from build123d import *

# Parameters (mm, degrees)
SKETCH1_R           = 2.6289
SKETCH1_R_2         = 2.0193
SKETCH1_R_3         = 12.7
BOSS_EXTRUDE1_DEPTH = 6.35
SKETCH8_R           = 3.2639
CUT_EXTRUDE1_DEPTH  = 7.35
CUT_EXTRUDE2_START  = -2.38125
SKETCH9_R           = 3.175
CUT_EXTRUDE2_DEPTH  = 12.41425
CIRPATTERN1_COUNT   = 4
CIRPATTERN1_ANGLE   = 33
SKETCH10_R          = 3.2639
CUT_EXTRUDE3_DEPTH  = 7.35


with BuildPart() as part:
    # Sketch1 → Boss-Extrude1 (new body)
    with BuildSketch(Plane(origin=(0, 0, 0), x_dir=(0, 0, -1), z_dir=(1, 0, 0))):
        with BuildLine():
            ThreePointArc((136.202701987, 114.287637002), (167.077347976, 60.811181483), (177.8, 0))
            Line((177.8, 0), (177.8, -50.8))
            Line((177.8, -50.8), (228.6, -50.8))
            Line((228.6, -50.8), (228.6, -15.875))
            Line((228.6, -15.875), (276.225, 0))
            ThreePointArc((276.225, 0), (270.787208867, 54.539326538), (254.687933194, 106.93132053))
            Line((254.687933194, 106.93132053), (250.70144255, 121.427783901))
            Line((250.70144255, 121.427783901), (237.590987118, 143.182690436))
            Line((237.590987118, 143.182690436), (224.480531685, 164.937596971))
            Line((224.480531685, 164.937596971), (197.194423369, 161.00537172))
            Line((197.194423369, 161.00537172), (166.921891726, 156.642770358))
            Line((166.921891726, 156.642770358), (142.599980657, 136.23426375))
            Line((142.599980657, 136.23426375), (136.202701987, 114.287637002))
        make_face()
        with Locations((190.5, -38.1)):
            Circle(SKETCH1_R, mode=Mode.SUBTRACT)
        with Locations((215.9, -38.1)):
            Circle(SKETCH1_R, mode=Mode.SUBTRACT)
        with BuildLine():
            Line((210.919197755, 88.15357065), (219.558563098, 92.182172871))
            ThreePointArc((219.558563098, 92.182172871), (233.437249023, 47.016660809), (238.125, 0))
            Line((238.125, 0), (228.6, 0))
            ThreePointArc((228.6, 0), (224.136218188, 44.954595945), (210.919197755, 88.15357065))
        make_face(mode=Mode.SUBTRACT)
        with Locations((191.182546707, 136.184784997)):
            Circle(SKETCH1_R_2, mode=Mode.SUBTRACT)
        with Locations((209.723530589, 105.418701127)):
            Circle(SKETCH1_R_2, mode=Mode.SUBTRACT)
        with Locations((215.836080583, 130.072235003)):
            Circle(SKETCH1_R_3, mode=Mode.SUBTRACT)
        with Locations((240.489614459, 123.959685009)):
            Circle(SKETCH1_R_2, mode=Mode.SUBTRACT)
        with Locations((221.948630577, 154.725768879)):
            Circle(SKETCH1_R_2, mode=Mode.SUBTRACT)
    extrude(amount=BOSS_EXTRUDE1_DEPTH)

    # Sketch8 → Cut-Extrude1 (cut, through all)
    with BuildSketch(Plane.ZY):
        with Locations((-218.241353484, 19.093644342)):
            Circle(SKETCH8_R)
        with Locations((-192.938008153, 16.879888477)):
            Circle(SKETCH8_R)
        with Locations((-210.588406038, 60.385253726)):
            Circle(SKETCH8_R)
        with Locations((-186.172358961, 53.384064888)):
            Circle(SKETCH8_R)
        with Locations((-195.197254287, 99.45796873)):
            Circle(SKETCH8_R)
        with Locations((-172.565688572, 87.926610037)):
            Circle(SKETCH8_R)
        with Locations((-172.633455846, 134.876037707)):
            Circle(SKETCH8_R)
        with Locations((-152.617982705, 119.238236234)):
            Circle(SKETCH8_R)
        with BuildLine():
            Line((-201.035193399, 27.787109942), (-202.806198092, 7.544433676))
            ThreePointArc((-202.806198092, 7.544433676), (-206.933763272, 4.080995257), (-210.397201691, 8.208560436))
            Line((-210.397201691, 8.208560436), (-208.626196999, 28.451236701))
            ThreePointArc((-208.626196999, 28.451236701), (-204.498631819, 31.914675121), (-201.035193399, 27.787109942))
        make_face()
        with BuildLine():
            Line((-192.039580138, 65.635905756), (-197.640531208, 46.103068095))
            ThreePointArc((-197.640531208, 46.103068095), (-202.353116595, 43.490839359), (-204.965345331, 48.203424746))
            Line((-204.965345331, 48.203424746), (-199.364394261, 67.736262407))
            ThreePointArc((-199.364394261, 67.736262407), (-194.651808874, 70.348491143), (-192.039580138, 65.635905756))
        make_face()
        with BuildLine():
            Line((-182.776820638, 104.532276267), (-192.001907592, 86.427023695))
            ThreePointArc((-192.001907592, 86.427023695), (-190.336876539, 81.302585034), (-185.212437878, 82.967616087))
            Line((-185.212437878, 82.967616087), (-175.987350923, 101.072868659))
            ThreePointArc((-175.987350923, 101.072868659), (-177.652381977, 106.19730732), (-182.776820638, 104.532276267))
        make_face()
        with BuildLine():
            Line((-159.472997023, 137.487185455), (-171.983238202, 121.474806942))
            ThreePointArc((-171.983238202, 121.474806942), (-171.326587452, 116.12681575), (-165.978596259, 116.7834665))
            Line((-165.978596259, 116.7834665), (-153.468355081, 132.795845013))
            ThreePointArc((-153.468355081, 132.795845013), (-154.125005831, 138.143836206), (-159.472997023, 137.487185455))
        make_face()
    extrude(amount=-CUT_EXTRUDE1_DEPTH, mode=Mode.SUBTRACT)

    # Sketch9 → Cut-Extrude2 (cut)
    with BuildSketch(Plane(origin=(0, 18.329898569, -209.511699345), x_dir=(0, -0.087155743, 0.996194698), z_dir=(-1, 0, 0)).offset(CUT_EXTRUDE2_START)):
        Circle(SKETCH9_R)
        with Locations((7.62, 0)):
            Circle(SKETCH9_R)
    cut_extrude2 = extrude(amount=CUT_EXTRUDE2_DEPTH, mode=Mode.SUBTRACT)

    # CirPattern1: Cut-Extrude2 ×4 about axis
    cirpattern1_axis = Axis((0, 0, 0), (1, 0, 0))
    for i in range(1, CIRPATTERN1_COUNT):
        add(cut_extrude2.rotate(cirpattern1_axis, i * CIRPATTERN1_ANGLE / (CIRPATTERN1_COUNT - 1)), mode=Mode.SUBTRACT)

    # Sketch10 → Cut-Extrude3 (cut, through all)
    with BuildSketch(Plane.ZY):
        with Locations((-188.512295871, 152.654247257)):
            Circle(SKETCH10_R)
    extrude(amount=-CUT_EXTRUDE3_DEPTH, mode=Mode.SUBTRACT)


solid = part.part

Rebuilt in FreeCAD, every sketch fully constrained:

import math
import FreeCAD as App
import Part
import Sketcher
from FreeCAD import Vector
Q = App.Units.Quantity

doc = App.newDocument("Part")
body = doc.addObject("PartDesign::Body", "Body")

sketch1 = body.newObject("Sketcher::SketchObject", "Sketch")
sketch1.AttachmentSupport = (doc.getObject("YZ_Plane"), [""])
sketch1.MapMode = "FlatFace"
sketch1.addGeometry([
    Part.ArcOfCircle(Part.Circle(Vector(0, 0, 0), Vector(0, 0, 1), 177.8), math.radians(-90), math.radians(-50)),
    Part.LineSegment(Vector(0, -177.8, 0), Vector(-50.8, -177.8, 0)),
    Part.LineSegment(Vector(-50.8, -177.8, 0), Vector(-50.8, -228.6, 0)),
    Part.LineSegment(Vector(-50.8, -228.6, 0), Vector(-15.9, -228.6, 0)),
    Part.LineSegment(Vector(-15.9, -228.6, 0), Vector(0, -276.2, 0)),
    Part.ArcOfCircle(Part.Circle(Vector(0, 0, 0), Vector(0, 0, 1), 276.2), math.radians(-90), math.radians(-67)),
    Part.LineSegment(Vector(106.9, -254.7, 0), Vector(121.4, -250.7, 0)),
    Part.LineSegment(Vector(121.4, -250.7, 0), Vector(143.2, -237.6, 0)),
    Part.LineSegment(Vector(143.2, -237.6, 0), Vector(164.9, -224.5, 0)),
    Part.LineSegment(Vector(164.9, -224.5, 0), Vector(161, -197.2, 0)),
    Part.LineSegment(Vector(161, -197.2, 0), Vector(156.6, -166.9, 0)),
    Part.LineSegment(Vector(156.6, -166.9, 0), Vector(136.2, -142.6, 0)),
    Part.LineSegment(Vector(136.2, -142.6, 0), Vector(114.3, -136.2, 0)),
    Part.Circle(Vector(-38.1, -190.5, 0), Vector(0, 0, 1), 2.6),
    Part.Circle(Vector(-38.1, -215.9, 0), Vector(0, 0, 1), 2.6),
    Part.ArcOfCircle(Part.Circle(Vector(0, 0, 0), Vector(0, 0, 1), 228.6), math.radians(-90), math.radians(-67)),
    Part.LineSegment(Vector(88.2, -210.9, 0), Vector(92.2, -219.6, 0)),
    Part.ArcOfCircle(Part.Circle(Vector(0, 0, 0), Vector(0, 0, 1), 238.1), math.radians(-90), math.radians(-67)),
    Part.LineSegment(Vector(0, -238.1, 0), Vector(0, -228.6, 0)),
    Part.Circle(Vector(105.4, -209.7, 0), Vector(0, 0, 1), 2),
    Part.Circle(Vector(136.2, -191.2, 0), Vector(0, 0, 1), 2),
    Part.Circle(Vector(130.1, -215.8, 0), Vector(0, 0, 1), 12.7),
    Part.Circle(Vector(154.7, -221.9, 0), Vector(0, 0, 1), 2),
    Part.Circle(Vector(124, -240.5, 0), Vector(0, 0, 1), 2),
], False)
sketch1.addConstraint([
    Sketcher.Constraint("Tangent", 0, 1, 1, 1),
    Sketcher.Constraint("Coincident", 1, 2, 2, 1),
    Sketcher.Constraint("Coincident", 2, 2, 3, 1),
    Sketcher.Constraint("Coincident", 3, 2, 4, 1),
    Sketcher.Constraint("Coincident", 4, 2, 5, 1),
    Sketcher.Constraint("Coincident", 5, 2, 6, 1),
    Sketcher.Constraint("Coincident", 6, 2, 7, 1),
    Sketcher.Constraint("Coincident", 7, 2, 8, 1),
    Sketcher.Constraint("Coincident", 8, 2, 9, 1),
    Sketcher.Constraint("Coincident", 9, 2, 10, 1),
    Sketcher.Constraint("Coincident", 10, 2, 11, 1),
    Sketcher.Constraint("Coincident", 11, 2, 12, 1),
    Sketcher.Constraint("Coincident", 12, 2, 0, 2),
    Sketcher.Constraint("Coincident", 15, 2, 16, 1),
    Sketcher.Constraint("Coincident", 16, 2, 17, 2),
    Sketcher.Constraint("Coincident", 17, 1, 18, 1),
    Sketcher.Constraint("Coincident", 18, 2, 15, 1),
    Sketcher.Constraint("Horizontal", 1),
    Sketcher.Constraint("Vertical", 2),
    Sketcher.Constraint("Horizontal", 3),
    Sketcher.Constraint("Vertical", 18),
    Sketcher.Constraint("Coincident", 0, 3, -1, 1),
    Sketcher.Constraint("Coincident", 5, 3, -1, 1),
    Sketcher.Constraint("Coincident", 15, 3, -1, 1),
    Sketcher.Constraint("Coincident", 17, 3, -1, 1),
    Sketcher.Constraint("Equal", 13, 14),
    Sketcher.Constraint("Equal", 19, 20),
    Sketcher.Constraint("Equal", 20, 22),
    Sketcher.Constraint("Equal", 22, 23),
    Sketcher.Constraint("PointOnObject", 4, 2, -2),
    Sketcher.Constraint("PointOnObject", 17, 1, -2),
    Sketcher.Constraint("Parallel", 7, 8),
    Sketcher.Constraint("Parallel", 9, 10),
    Sketcher.Constraint("Horizontal", 3, 2, 18, 2),
    Sketcher.Constraint("Vertical", 13, 3, 14, 3),
    Sketcher.Constraint("Equal", 1, 2),
    Sketcher.Constraint("Equal", 7, 8),
    Sketcher.Constraint("Diameter", 21, Q("1 in")),
    Sketcher.Constraint("Radius", 0, Q("7 in")),
    Sketcher.Constraint("Radius", 15, Q("9 in")),
    Sketcher.Constraint("Distance", 7, Q("1 in")),
    Sketcher.Constraint("Diameter", 13, Q("0.207 in")),
    Sketcher.Constraint("Diameter", 19, Q("0.159 in")),
    Sketcher.Constraint("Angle", 11, Q("130 deg")),
    Sketcher.Constraint("Angle", 16, Q("-65 deg")),
    Sketcher.Constraint("Radius", 5, Q("10.875 in")),
    Sketcher.Constraint("Radius", 17, Q("9.375 in")),
    Sketcher.Constraint("DistanceY", 14, 3, 13, 3, Q("1 in")),
    Sketcher.Constraint("Distance", 12, Q("0.9 in")),
    Sketcher.Constraint("DistanceX", 13, 3, -1, 1, Q("1.5 in")),
    Sketcher.Constraint("DistanceY", 13, 3, -1, 1, Q("7.5 in")),
    Sketcher.Constraint("Distance", 11, Q("1.25 in")),
    Sketcher.Constraint("DistanceX", 3, 1, 3, 2, Q("1.375 in")),
    Sketcher.Constraint("DistanceX", -1, 1, 19, 3, Q("105.418701 mm")),
    Sketcher.Constraint("DistanceY", 12, 2, -1, 1, Q("136.202702 mm")),
    Sketcher.Constraint("DistanceY", 22, 3, 19, 3, Q("12.2251 mm")),
    Sketcher.Constraint("DistanceX", 23, 3, 20, 3, Q("12.2251 mm")),
    Sketcher.Constraint("DistanceX", 6, 2, 23, 3, Q("2.531901 mm")),
    Sketcher.Constraint("DistanceY", 8, 2, 22, 3, Q("2.531901 mm")),
    Sketcher.Constraint("DistanceX", 10, 2, 9, 2, Q("4.362601 mm")),
    Sketcher.Constraint("DistanceX", 22, 3, 10, 2, Q("1.917001 mm")),
    Sketcher.Constraint("DistanceY", 21, 3, 11, 2, Q("73.2361 mm")),
    Sketcher.Constraint("Distance", 6, Q("15.034612 mm")),
    Sketcher.Constraint("Distance", 9, Q("27.567991 mm")),
    Sketcher.Constraint("DistanceY", 19, 3, -1, 1, Q("209.723531 mm")),
    Sketcher.Constraint("DistanceY", 21, 3, -1, 1, Q("215.836081 mm")),
    Sketcher.Constraint("DistanceX", -1, 1, 7, 2, Q("143.18269 mm")),
    Sketcher.Constraint("DistanceX", -1, 1, 15, 2, Q("88.153571 mm")),
    Sketcher.Constraint("DistanceX", 21, 3, 20, 3, Q("6.11255 mm")),
    Sketcher.Constraint("DistanceY", 5, 2, 23, 3, Q("14.198319 mm")),
    Sketcher.Constraint("DistanceY", 20, 3, -1, 1, Q("191.182547 mm")),
])
pad1 = body.newObject("PartDesign::Pad", "Pad")
pad1.Profile = sketch1
pad1.Length = Q("0.25 in")

sketch2 = body.newObject("Sketcher::SketchObject", "Sketch001")
sketch2.AttachmentSupport = (doc.getObject("YZ_Plane"), [""])
sketch2.MapMode = "FlatFace"
sketch2.addGeometry([
    Part.Circle(Vector(19.1, -218.2, 0), Vector(0, 0, 1), 3.3),
    Part.Circle(Vector(16.9, -192.9, 0), Vector(0, 0, 1), 3.3),
    Part.Circle(Vector(60.4, -210.6, 0), Vector(0, 0, 1), 3.3),
    Part.Circle(Vector(53.4, -186.2, 0), Vector(0, 0, 1), 3.3),
    Part.Circle(Vector(99.5, -195.2, 0), Vector(0, 0, 1), 3.3),
    Part.Circle(Vector(87.9, -172.6, 0), Vector(0, 0, 1), 3.3),
    Part.Circle(Vector(134.9, -172.6, 0), Vector(0, 0, 1), 3.3),
    Part.Circle(Vector(119.2, -152.6, 0), Vector(0, 0, 1), 3.3),
    Part.LineSegment(Vector(7.5, -202.8, 0), Vector(27.8, -201, 0)),
    Part.ArcOfCircle(Part.Circle(Vector(28.1, -204.8, 0), Vector(0, 0, 1), 3.8), math.radians(-85), math.radians(95)),
    Part.LineSegment(Vector(28.5, -208.6, 0), Vector(8.2, -210.4, 0)),
    Part.ArcOfCircle(Part.Circle(Vector(7.9, -206.6, 0), Vector(0, 0, 1), 3.8), math.radians(95), math.radians(275)),
    Part.LineSegment(Vector(46.1, -197.6, 0), Vector(65.6, -192, 0)),
    Part.ArcOfCircle(Part.Circle(Vector(66.7, -195.7, 0), Vector(0, 0, 1), 3.8), math.radians(-74), math.radians(106)),
    Part.LineSegment(Vector(67.7, -199.4, 0), Vector(48.2, -205, 0)),
    Part.ArcOfCircle(Part.Circle(Vector(47.2, -201.3, 0), Vector(0, 0, 1), 3.8), math.radians(106), math.radians(286)),
    Part.LineSegment(Vector(104.5, -182.8, 0), Vector(86.4, -192, 0)),
    Part.ArcOfCircle(Part.Circle(Vector(84.7, -188.6, 0), Vector(0, 0, 1), 3.8), math.radians(117), math.radians(297)),
    Part.LineSegment(Vector(83, -185.2, 0), Vector(101.1, -176, 0)),
    Part.ArcOfCircle(Part.Circle(Vector(102.8, -179.4, 0), Vector(0, 0, 1), 3.8), math.radians(-63), math.radians(117)),
    Part.LineSegment(Vector(137.5, -159.5, 0), Vector(121.5, -172, 0)),
    Part.ArcOfCircle(Part.Circle(Vector(119.1, -169, 0), Vector(0, 0, 1), 3.8), math.radians(128), math.radians(308)),
    Part.LineSegment(Vector(116.8, -166, 0), Vector(132.8, -153.5, 0)),
    Part.ArcOfCircle(Part.Circle(Vector(135.1, -156.5, 0), Vector(0, 0, 1), 3.8), math.radians(-52), math.radians(128)),
], False)
sketch2.addConstraint([
    Sketcher.Constraint("Tangent", 8, 2, 9, 2),
    Sketcher.Constraint("Tangent", 9, 1, 10, 1),
    Sketcher.Constraint("Tangent", 10, 2, 11, 2),
    Sketcher.Constraint("Tangent", 11, 1, 8, 1),
    Sketcher.Constraint("Tangent", 12, 2, 13, 2),
    Sketcher.Constraint("Tangent", 13, 1, 14, 1),
    Sketcher.Constraint("Tangent", 14, 2, 15, 2),
    Sketcher.Constraint("Tangent", 15, 1, 12, 1),
    Sketcher.Constraint("Tangent", 16, 2, 17, 2),
    Sketcher.Constraint("Tangent", 17, 1, 18, 1),
    Sketcher.Constraint("Tangent", 18, 2, 19, 2),
    Sketcher.Constraint("Tangent", 19, 1, 16, 1),
    Sketcher.Constraint("Tangent", 20, 2, 21, 2),
    Sketcher.Constraint("Tangent", 21, 1, 22, 1),
    Sketcher.Constraint("Tangent", 22, 2, 23, 2),
    Sketcher.Constraint("Tangent", 23, 1, 20, 1),
    Sketcher.Constraint("Equal", 0, 1),
    Sketcher.Constraint("Equal", 1, 2),
    Sketcher.Constraint("Equal", 2, 3),
    Sketcher.Constraint("Equal", 3, 4),
    Sketcher.Constraint("Equal", 4, 5),
    Sketcher.Constraint("Equal", 5, 6),
    Sketcher.Constraint("Equal", 6, 7),
    Sketcher.Constraint("Equal", 9, 11),
    Sketcher.Constraint("Equal", 11, 13),
    Sketcher.Constraint("Equal", 13, 15),
    Sketcher.Constraint("Equal", 15, 17),
    Sketcher.Constraint("Equal", 17, 19),
    Sketcher.Constraint("Equal", 19, 21),
    Sketcher.Constraint("Equal", 21, 23),
    Sketcher.Constraint("Equal", 10, 12),
    Sketcher.Constraint("Equal", 14, 16),
    Sketcher.Constraint("Equal", 18, 20),
    Sketcher.Constraint("Radius", 9, Q("0.15 in")),
    Sketcher.Constraint("Diameter", 0, Q("0.257 in")),
    Sketcher.Constraint("Angle", 8, Q("5 deg")),
    Sketcher.Constraint("Angle", 12, Q("16 deg")),
    Sketcher.Constraint("Angle", 16, Q("-153 deg")),
    Sketcher.Constraint("Angle", 20, Q("-142 deg")),
    Sketcher.Constraint("Distance", 8, Q("0.8 in")),
    Sketcher.Constraint("DistanceY", 2, 3, 7, 3, Q("2.2823001 in")),
    Sketcher.Constraint("DistanceY", 11, 3, -1, 1, Q("206.6017 mm")),
    Sketcher.Constraint("DistanceY", 0, 3, 4, 3, Q("23.044099 mm")),
    Sketcher.Constraint("DistanceY", 4, 3, 6, 3, Q("22.563798 mm")),
    Sketcher.Constraint("DistanceX", 7, 3, 6, 3, Q("15.637801 mm")),
    Sketcher.Constraint("DistanceY", 13, 3, 5, 3, Q("23.136299 mm")),
    Sketcher.Constraint("DistanceX", 21, 3, 6, 3, Q("15.746901 mm")),
    Sketcher.Constraint("DistanceX", 4, 3, 18, 2, Q("1.6149 mm")),
    Sketcher.Constraint("DistanceY", 6, 3, 22, 2, Q("19.165101 mm")),
    Sketcher.Constraint("DistanceX", -1, 1, 1, 3, Q("16.879888 mm")),
    Sketcher.Constraint("DistanceY", 1, 3, -1, 1, Q("192.938008 mm")),
    Sketcher.Constraint("DistanceY", 3, 3, -1, 1, Q("186.172359 mm")),
    Sketcher.Constraint("DistanceX", -1, 1, 4, 3, Q("99.457969 mm")),
    Sketcher.Constraint("DistanceX", -1, 1, 5, 3, Q("87.92661 mm")),
    Sketcher.Constraint("DistanceY", 5, 3, -1, 1, Q("172.565689 mm")),
    Sketcher.Constraint("DistanceX", -1, 1, 8, 2, Q("27.78711 mm")),
    Sketcher.Constraint("DistanceX", -1, 1, 15, 1, Q("46.103068 mm")),
    Sketcher.Constraint("DistanceY", 18, 2, -1, 1, Q("175.987351 mm")),
    Sketcher.Constraint("DistanceY", 20, 2, -1, 1, Q("171.983238 mm")),
    Sketcher.Constraint("DistanceX", 0, 3, 2, 3, Q("41.291609 mm")),
    Sketcher.Constraint("DistanceX", 3, 3, 2, 3, Q("7.001189 mm")),
    Sketcher.Constraint("DistanceY", 2, 3, 4, 3, Q("15.391152 mm")),
    Sketcher.Constraint("DistanceX", 4, 3, 6, 3, Q("35.418069 mm")),
    Sketcher.Constraint("DistanceX", 3, 3, 7, 3, Q("65.854171 mm")),
])
pocket1 = body.newObject("PartDesign::Pocket", "Pocket")
pocket1.Profile = sketch2
pocket1.Type = "ThroughAll"
pocket1.Reversed = True

sketch3 = body.newObject("Sketcher::SketchObject", "Sketch002")
sketch3.AttachmentSupport = (doc.getObject("YZ_Plane"), [""])
sketch3.MapMode = "FlatFace"
sketch3.AttachmentOffset = App.Placement(Vector(0, 0, 0.09375 * 25.4), App.Rotation())
sketch3.addGeometry([
    Part.Circle(Vector(18.3, -209.5, 0), Vector(0, 0, 1), 3.2),
    Part.Circle(Vector(17.7, -201.9, 0), Vector(0, 0, 1), 3.2),
], False)
sketch3.addConstraint([
    Sketcher.Constraint("Equal", 0, 1),
    Sketcher.Constraint("Diameter", 0, Q("0.25 in")),
    Sketcher.Constraint("DistanceX", -1, 1, 0, 3, Q("18.329899 mm")),
    Sketcher.Constraint("DistanceY", 0, 3, -1, 1, Q("209.511699 mm")),
    Sketcher.Constraint("DistanceX", -1, 1, 1, 3, Q("17.665772 mm")),
    Sketcher.Constraint("DistanceY", 1, 3, -1, 1, Q("201.920696 mm")),
])
pocket2 = body.newObject("PartDesign::Pocket", "Pocket001")
pocket2.Profile = sketch3
pocket2.Length = 12.41425
doc.recompute()

polarpattern = body.newObject("PartDesign::PolarPattern", "PolarPattern")
polarpattern.Originals = [pocket2]
polarpattern.Axis = (doc.getObject("X_Axis"), [""])
polarpattern.Angle = 33
polarpattern.Occurrences = 4
body.Tip = polarpattern

sketch4 = body.newObject("Sketcher::SketchObject", "Sketch003")
sketch4.AttachmentSupport = (doc.getObject("YZ_Plane"), [""])
sketch4.MapMode = "FlatFace"
sketch4.addGeometry(Part.Circle(Vector(152.7, -188.5, 0), Vector(0, 0, 1), 3.3), False)
sketch4.addConstraint([
    Sketcher.Constraint("Diameter", 0, Q("0.257 in")),
    Sketcher.Constraint("DistanceX", -1, 1, 0, 3, Q("152.654247 mm")),
    Sketcher.Constraint("DistanceY", 0, 3, -1, 1, Q("188.512296 mm")),
])
pocket3 = body.newObject("PartDesign::Pocket", "Pocket002")
pocket3.Profile = sketch4
pocket3.Type = "ThroughAll"
pocket3.Reversed = True

doc.recompute()
